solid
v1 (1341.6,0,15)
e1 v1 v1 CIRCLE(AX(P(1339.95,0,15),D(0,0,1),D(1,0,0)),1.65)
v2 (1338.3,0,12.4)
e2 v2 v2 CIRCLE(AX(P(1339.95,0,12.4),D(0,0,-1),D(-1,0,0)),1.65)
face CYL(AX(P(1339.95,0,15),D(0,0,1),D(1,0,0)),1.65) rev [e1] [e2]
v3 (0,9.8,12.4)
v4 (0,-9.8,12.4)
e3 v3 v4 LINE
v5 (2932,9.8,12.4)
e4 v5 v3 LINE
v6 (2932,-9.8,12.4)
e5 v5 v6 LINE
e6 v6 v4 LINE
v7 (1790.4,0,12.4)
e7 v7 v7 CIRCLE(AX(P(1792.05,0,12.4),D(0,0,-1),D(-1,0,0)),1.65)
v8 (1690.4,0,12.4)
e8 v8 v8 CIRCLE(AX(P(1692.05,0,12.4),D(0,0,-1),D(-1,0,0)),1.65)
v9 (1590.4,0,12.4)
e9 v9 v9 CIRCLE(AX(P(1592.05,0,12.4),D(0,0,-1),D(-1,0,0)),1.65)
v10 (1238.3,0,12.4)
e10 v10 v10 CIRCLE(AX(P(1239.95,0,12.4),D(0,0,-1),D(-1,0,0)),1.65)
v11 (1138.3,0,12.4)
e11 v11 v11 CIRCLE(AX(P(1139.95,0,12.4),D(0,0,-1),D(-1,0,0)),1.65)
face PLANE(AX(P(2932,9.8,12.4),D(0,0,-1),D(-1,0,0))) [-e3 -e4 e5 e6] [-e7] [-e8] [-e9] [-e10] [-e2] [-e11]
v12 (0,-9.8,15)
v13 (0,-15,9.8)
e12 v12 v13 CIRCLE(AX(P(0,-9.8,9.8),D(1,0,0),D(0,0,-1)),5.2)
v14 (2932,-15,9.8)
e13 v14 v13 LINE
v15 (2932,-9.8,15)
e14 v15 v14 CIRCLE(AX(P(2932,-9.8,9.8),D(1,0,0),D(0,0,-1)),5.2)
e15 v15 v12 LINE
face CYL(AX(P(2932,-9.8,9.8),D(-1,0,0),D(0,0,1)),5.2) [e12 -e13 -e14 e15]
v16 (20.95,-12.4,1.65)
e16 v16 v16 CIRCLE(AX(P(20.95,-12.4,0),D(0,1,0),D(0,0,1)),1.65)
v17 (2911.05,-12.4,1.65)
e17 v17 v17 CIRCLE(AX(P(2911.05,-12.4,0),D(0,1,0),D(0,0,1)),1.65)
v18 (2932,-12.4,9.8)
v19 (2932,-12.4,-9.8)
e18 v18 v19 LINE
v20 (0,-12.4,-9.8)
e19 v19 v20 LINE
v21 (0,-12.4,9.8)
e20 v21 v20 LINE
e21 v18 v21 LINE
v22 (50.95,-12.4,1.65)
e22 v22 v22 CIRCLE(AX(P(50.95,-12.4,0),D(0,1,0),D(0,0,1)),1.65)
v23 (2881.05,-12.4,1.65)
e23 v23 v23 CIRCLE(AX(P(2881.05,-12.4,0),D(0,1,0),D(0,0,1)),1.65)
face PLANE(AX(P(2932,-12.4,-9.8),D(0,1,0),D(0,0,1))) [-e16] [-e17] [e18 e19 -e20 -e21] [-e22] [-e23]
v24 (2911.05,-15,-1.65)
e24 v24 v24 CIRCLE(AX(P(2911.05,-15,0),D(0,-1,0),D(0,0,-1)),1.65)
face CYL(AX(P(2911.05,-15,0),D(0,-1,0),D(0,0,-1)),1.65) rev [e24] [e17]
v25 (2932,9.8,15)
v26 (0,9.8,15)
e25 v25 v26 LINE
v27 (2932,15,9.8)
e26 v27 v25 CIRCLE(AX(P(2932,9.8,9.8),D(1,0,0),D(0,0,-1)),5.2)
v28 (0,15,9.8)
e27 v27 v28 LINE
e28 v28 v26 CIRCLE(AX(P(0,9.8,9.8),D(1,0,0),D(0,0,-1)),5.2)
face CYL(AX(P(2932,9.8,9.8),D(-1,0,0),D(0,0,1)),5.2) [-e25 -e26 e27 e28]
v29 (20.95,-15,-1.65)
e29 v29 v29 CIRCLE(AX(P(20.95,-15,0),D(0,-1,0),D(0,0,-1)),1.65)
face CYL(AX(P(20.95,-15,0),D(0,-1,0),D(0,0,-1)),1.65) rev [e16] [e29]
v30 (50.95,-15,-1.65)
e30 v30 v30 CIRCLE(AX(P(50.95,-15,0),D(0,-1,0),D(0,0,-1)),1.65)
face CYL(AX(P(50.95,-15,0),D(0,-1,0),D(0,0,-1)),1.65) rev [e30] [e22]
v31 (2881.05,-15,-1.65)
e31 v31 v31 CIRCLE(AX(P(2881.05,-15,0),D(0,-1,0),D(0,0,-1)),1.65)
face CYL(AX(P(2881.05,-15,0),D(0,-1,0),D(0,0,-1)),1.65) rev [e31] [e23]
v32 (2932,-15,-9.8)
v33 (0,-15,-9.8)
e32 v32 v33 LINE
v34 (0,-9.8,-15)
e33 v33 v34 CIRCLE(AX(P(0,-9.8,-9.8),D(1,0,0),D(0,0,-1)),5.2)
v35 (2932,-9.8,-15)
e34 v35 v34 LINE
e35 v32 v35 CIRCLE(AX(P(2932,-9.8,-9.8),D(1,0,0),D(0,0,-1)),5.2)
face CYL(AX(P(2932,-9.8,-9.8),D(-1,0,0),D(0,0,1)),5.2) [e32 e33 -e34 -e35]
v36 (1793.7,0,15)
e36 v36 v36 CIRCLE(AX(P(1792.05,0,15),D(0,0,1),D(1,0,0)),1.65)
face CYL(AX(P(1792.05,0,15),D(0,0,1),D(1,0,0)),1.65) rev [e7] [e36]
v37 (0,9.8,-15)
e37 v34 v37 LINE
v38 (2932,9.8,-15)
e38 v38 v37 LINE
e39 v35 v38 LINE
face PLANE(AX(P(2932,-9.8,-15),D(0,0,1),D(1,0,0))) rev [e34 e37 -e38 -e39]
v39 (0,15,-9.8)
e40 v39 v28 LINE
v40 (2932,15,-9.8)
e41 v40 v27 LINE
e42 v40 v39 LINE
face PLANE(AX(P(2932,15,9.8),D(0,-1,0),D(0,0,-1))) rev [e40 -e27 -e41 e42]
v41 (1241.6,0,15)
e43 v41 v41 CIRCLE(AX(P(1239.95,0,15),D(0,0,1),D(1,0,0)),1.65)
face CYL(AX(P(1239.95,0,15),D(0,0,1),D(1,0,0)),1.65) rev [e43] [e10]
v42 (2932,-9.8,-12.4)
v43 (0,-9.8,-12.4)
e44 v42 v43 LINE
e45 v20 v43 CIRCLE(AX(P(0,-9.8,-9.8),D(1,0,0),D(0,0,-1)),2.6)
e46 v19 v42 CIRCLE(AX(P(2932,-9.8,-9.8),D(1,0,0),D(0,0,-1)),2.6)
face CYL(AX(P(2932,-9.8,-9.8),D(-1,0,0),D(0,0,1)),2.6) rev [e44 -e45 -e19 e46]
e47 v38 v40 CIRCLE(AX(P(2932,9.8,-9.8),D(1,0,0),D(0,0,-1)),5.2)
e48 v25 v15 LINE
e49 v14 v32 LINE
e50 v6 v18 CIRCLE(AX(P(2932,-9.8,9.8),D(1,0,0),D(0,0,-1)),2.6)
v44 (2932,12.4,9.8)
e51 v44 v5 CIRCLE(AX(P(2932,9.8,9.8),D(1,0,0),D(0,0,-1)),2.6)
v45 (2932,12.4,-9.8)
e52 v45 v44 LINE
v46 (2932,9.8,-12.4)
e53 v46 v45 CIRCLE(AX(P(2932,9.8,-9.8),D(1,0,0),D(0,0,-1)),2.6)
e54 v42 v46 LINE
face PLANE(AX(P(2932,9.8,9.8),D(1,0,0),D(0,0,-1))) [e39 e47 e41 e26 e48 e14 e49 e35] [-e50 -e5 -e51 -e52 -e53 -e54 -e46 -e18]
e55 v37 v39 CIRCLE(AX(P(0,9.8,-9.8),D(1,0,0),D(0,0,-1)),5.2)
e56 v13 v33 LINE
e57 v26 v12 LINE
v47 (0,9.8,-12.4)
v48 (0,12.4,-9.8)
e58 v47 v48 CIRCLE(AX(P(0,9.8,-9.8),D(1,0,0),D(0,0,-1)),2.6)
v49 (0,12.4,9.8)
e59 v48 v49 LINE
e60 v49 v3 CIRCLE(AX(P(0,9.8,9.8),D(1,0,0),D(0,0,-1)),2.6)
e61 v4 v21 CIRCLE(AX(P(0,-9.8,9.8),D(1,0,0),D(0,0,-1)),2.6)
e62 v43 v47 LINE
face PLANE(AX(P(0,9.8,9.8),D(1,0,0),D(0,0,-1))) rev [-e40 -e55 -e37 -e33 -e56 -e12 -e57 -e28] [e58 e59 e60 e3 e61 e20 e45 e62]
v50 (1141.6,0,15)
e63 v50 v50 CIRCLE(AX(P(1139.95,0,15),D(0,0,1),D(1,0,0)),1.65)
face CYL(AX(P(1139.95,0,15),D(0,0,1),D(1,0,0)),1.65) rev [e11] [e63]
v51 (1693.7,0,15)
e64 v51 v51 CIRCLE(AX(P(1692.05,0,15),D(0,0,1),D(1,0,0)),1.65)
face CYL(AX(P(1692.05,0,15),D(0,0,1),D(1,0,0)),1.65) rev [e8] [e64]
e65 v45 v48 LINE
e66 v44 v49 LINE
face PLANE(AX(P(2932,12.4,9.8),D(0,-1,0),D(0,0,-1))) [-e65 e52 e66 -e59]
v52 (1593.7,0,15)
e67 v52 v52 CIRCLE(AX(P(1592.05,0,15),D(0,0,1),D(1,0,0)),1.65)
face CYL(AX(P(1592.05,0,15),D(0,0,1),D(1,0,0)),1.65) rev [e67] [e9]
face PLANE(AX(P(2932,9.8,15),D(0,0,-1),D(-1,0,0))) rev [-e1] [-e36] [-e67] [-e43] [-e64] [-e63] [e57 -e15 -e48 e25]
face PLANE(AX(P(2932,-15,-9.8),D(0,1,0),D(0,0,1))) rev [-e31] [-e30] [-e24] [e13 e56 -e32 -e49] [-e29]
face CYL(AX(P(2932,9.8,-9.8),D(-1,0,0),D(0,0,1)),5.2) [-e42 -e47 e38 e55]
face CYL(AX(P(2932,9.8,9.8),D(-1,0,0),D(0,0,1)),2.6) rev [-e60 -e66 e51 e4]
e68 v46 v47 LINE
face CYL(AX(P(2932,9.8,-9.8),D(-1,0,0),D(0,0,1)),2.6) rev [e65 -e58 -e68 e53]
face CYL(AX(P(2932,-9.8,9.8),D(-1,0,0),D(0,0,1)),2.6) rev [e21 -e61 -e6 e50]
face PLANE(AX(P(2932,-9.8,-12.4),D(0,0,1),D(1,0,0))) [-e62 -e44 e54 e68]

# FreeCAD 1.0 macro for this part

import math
import FreeCAD as App
import Part
import Sketcher
from FreeCAD import Vector

doc = App.newDocument("Part")
params = doc.addObject("Spreadsheet::Sheet", "Params")
for row, (alias, value) in enumerate([
    ("sketch1_radius", "5.2 mm"),
    ("sketch1_radius2", "2.6 mm"),
    ("sketch1_width", "19.6 mm"),
    ("pad1_length", "2932 mm"),
    ("sketch2_diameter", "3.3 mm"),
    ("hole_diameter", "3.3 mm"),
    ("hole_depth", "10.1 mm"),
    ("sketch3_diameter", "3.3 mm"),
    ("hole2_diameter", "3.3 mm"),
    ("hole2_depth", "10.1 mm"),
], start=1):
    params.set(f"A{row}", alias)
    params.set(f"B{row}", "=" + value)
    params.setAlias(f"B{row}", alias)

body = doc.addObject("PartDesign::Body", "Body")

sketch1 = body.newObject("Sketcher::SketchObject", "Sketch")
sketch1.AttachmentSupport = (doc.getObject("YZ_Plane"), [""])
sketch1.MapMode = "FlatFace"
sketch1.addGeometry(Part.LineSegment(Vector(-9.8, -15, 0), Vector(9.8, -15, 0)), False)
sketch1.addGeometry(Part.ArcOfCircle(Part.Circle(Vector(9.8, -9.8, 0), Vector(0, 0, 1), 5.2), math.radians(-90), math.radians(0)), False)
sketch1.addGeometry(Part.LineSegment(Vector(15, -9.8, 0), Vector(15, 9.8, 0)), False)
sketch1.addGeometry(Part.ArcOfCircle(Part.Circle(Vector(9.8, 9.8, 0), Vector(0, 0, 1), 5.2), math.radians(0), math.radians(90)), False)
sketch1.addGeometry(Part.LineSegment(Vector(9.8, 15, 0), Vector(-9.8, 15, 0)), False)
sketch1.addGeometry(Part.ArcOfCircle(Part.Circle(Vector(-9.8, 9.8, 0), Vector(0, 0, 1), 5.2), math.radians(90), math.radians(180)), False)
sketch1.addGeometry(Part.LineSegment(Vector(-15, 9.8, 0), Vector(-15, -9.8, 0)), False)
sketch1.addGeometry(Part.ArcOfCircle(Part.Circle(Vector(-9.8, -9.8, 0), Vector(0, 0, 1), 5.2), math.radians(-180), math.radians(-90)), False)
sketch1.addGeometry(Part.LineSegment(Vector(9.8, -12.4, 0), Vector(-9.8, -12.4, 0)), False)
sketch1.addGeometry(Part.ArcOfCircle(Part.Circle(Vector(-9.8, -9.8, 0), Vector(0, 0, 1), 2.6), math.radians(180), math.radians(270)), False)
sketch1.addGeometry(Part.LineSegment(Vector(-12.4, -9.8, 0), Vector(-12.4, 9.8, 0)), False)
sketch1.addGeometry(Part.ArcOfCircle(Part.Circle(Vector(-9.8, 9.8, 0), Vector(0, 0, 1), 2.6), math.radians(90), math.radians(180)), False)
sketch1.addGeometry(Part.LineSegment(Vector(-9.8, 12.4, 0), Vector(9.8, 12.4, 0)), False)
sketch1.addGeometry(Part.ArcOfCircle(Part.Circle(Vector(9.8, 9.8, 0), Vector(0, 0, 1), 2.6), math.radians(0), math.radians(90)), False)
sketch1.addGeometry(Part.LineSegment(Vector(12.4, 9.8, 0), Vector(12.4, -9.8, 0)), False)
sketch1.addGeometry(Part.ArcOfCircle(Part.Circle(Vector(9.8, -9.8, 0), Vector(0, 0, 1), 2.6), math.radians(-90), math.radians(0)), False)
sketch1.addConstraint(Sketcher.Constraint("Tangent", 0, 2, 1, 1))
sketch1.addConstraint(Sketcher.Constraint("Tangent", 1, 2, 2, 1))
sketch1.addConstraint(Sketcher.Constraint("Tangent", 2, 2, 3, 1))
sketch1.addConstraint(Sketcher.Constraint("Tangent", 3, 2, 4, 1))
sketch1.addConstraint(Sketcher.Constraint("Tangent", 4, 2, 5, 1))
sketch1.addConstraint(Sketcher.Constraint("Tangent", 5, 2, 6, 1))
sketch1.addConstraint(Sketcher.Constraint("Tangent", 6, 2, 7, 1))
sketch1.addConstraint(Sketcher.Constraint("Tangent", 7, 2, 0, 1))
sketch1.addConstraint(Sketcher.Constraint("Tangent", 8, 2, 9, 2))
sketch1.addConstraint(Sketcher.Constraint("Tangent", 9, 1, 10, 1))
sketch1.addConstraint(Sketcher.Constraint("Tangent", 10, 2, 11, 2))
sketch1.addConstraint(Sketcher.Constraint("Tangent", 11, 1, 12, 1))
sketch1.addConstraint(Sketcher.Constraint("Tangent", 12, 2, 13, 2))
sketch1.addConstraint(Sketcher.Constraint("Tangent", 13, 1, 14, 1))
sketch1.addConstraint(Sketcher.Constraint("Tangent", 14, 2, 15, 2))
sketch1.addConstraint(Sketcher.Constraint("Tangent", 15, 1, 8, 1))
sketch1.addConstraint(Sketcher.Constraint("Horizontal", 0))
sketch1.addConstraint(Sketcher.Constraint("Vertical", 2))
sketch1.addConstraint(Sketcher.Constraint("Horizontal", 4))
sketch1.addConstraint(Sketcher.Constraint("Vertical", 6))
sketch1.addConstraint(Sketcher.Constraint("Horizontal", 8))
sketch1.addConstraint(Sketcher.Constraint("Vertical", 10))
sketch1.addConstraint(Sketcher.Constraint("Horizontal", 12))
sketch1.addConstraint(Sketcher.Constraint("Vertical", 14))
sketch1.addConstraint(Sketcher.Constraint("Coincident", 9, 3, 7, 3))
sketch1.addConstraint(Sketcher.Constraint("Coincident", 11, 3, 5, 3))
sketch1.addConstraint(Sketcher.Constraint("Coincident", 13, 3, 3, 3))
sketch1.addConstraint(Sketcher.Constraint("Equal", 1, 3))
sketch1.addConstraint(Sketcher.Constraint("Equal", 3, 5))
sketch1.addConstraint(Sketcher.Constraint("Equal", 5, 7))
sketch1.addConstraint(Sketcher.Constraint("Equal", 13, 15))
sketch1.addConstraint(Sketcher.Constraint("Symmetric", 1, 3, 5, 3, -1, 1))
sketch1.addConstraint(Sketcher.Constraint("Equal", 12, 2))
sketch1.addConstraint(Sketcher.Constraint("Radius", 1, 5.2))
sketch1.addConstraint(Sketcher.Constraint("Radius", 9, 2.6))
sketch1.addConstraint(Sketcher.Constraint("DistanceX", 0, 1, 0, 2, 19.6))
sketch1.setExpression("Constraints[33]", "Params.sketch1_radius")
sketch1.setExpression("Constraints[34]", "Params.sketch1_radius2")
sketch1.setExpression("Constraints[35]", "Params.sketch1_width")
pad1 = body.newObject("PartDesign::Pad", "Pad")
pad1.Profile = sketch1
pad1.setExpression("Length", "Params.pad1_length")

sketch2 = body.newObject("Sketcher::SketchObject", "Sketch001")
sketch2.AttachmentSupport = (doc.getObject("XZ_Plane"), [""])
sketch2.MapMode = "FlatFace"
sketch2.AttachmentOffset = App.Placement(Vector(0, 0, 15), App.Rotation())
sketch2.addGeometry(Part.Circle(Vector(20.9, 0, 0), Vector(0, 0, 1), 1.6), False)
sketch2.addGeometry(Part.Circle(Vector(51, 0, 0), Vector(0, 0, 1), 1.6), False)
sketch2.addGeometry(Part.Circle(Vector(2881.1, 0, 0), Vector(0, 0, 1), 1.6), False)
sketch2.addGeometry(Part.Circle(Vector(2911.1, 0, 0), Vector(0, 0, 1), 1.6), False)
sketch2.addConstraint(Sketcher.Constraint("Equal", 0, 1))
sketch2.addConstraint(Sketcher.Constraint("Equal", 1, 2))
sketch2.addConstraint(Sketcher.Constraint("Equal", 2, 3))
sketch2.addConstraint(Sketcher.Constraint("PointOnObject", 0, 3, -1))
sketch2.addConstraint(Sketcher.Constraint("PointOnObject", 1, 3, -1))
sketch2.addConstraint(Sketcher.Constraint("PointOnObject", 2, 3, -1))
sketch2.addConstraint(Sketcher.Constraint("PointOnObject", 3, 3, -1))
sketch2.addConstraint(Sketcher.Constraint("Diameter", 0, 3.3))
sketch2.addConstraint(Sketcher.Constraint("DistanceX", 0, 3, 1, 3, 30.0))
sketch2.addConstraint(Sketcher.Constraint("DistanceX", 2, 3, 3, 3, 30.0))
sketch2.addConstraint(Sketcher.Constraint("DistanceX", 1, 3, 2, 3, 2830.1))
sketch2.addConstraint(Sketcher.Constraint("DistanceX", -1, 1, 0, 3, 20.95))
sketch2.setExpression("Constraints[7]", "Params.sketch2_diameter")
doc.recompute()
hole = body.newObject("PartDesign::Hole", "Hole")
hole.Profile = sketch2
hole.ThreadType = "None"
hole.setExpression("Diameter", "Params.hole_diameter")
hole.DepthType = "Dimension"
hole.setExpression("Depth", "Params.hole_depth")
hole.DrillPoint = "Angled"
hole.DrillPointAngle = 118

sketch3 = body.newObject("Sketcher::SketchObject", "Sketch002")
sketch3.AttachmentSupport = (doc.getObject("XY_Plane"), [""])
sketch3.MapMode = "FlatFace"
sketch3.AttachmentOffset = App.Placement(Vector(0, 0, 15), App.Rotation())
sketch3.addGeometry(Part.Circle(Vector(1140, 0, 0), Vector(0, 0, 1), 1.6), False)
sketch3.addGeometry(Part.Circle(Vector(1240, 0, 0), Vector(0, 0, 1), 1.6), False)
sketch3.addGeometry(Part.Circle(Vector(1340, 0, 0), Vector(0, 0, 1), 1.6), False)
sketch3.addGeometry(Part.Circle(Vector(1592, 0, 0), Vector(0, 0, 1), 1.6), False)
sketch3.addGeometry(Part.Circle(Vector(1692, 0, 0), Vector(0, 0, 1), 1.6), False)
sketch3.addGeometry(Part.Circle(Vector(1792, 0, 0), Vector(0, 0, 1), 1.6), False)
sketch3.addConstraint(Sketcher.Constraint("Equal", 0, 1))
sketch3.addConstraint(Sketcher.Constraint("Equal", 1, 2))
sketch3.addConstraint(Sketcher.Constraint("Equal", 2, 3))
sketch3.addConstraint(Sketcher.Constraint("Equal", 3, 4))
sketch3.addConstraint(Sketcher.Constraint("Equal", 4, 5))
sketch3.addConstraint(Sketcher.Constraint("PointOnObject", 0, 3, -1))
sketch3.addConstraint(Sketcher.Constraint("PointOnObject", 1, 3, -1))
sketch3.addConstraint(Sketcher.Constraint("PointOnObject", 2, 3, -1))
sketch3.addConstraint(Sketcher.Constraint("PointOnObject", 3, 3, -1))
sketch3.addConstraint(Sketcher.Constraint("PointOnObject", 4, 3, -1))
sketch3.addConstraint(Sketcher.Constraint("PointOnObject", 5, 3, -1))
sketch3.addConstraint(Sketcher.Constraint("Diameter", 0, 3.3))
sketch3.addConstraint(Sketcher.Constraint("DistanceX", 0, 3, 1, 3, 100.0))
sketch3.addConstraint(Sketcher.Constraint("DistanceX", 1, 3, 2, 3, 100.0))
sketch3.addConstraint(Sketcher.Constraint("DistanceX", 3, 3, 4, 3, 100.0))
sketch3.addConstraint(Sketcher.Constraint("DistanceX", 4, 3, 5, 3, 100.0))
sketch3.addConstraint(Sketcher.Constraint("DistanceX", 2, 3, 3, 3, 252.1))
sketch3.addConstraint(Sketcher.Constraint("DistanceX", -1, 1, 0, 3, 1139.95))
sketch3.setExpression("Constraints[11]", "Params.sketch3_diameter")
doc.recompute()
hole2 = body.newObject("PartDesign::Hole", "Hole001")
hole2.Profile = sketch3
hole2.ThreadType = "None"
hole2.setExpression("Diameter", "Params.hole2_diameter")
hole2.DepthType = "Dimension"
hole2.setExpression("Depth", "Params.hole2_depth")
hole2.DrillPoint = "Angled"
hole2.DrillPointAngle = 118

doc.recompute()
